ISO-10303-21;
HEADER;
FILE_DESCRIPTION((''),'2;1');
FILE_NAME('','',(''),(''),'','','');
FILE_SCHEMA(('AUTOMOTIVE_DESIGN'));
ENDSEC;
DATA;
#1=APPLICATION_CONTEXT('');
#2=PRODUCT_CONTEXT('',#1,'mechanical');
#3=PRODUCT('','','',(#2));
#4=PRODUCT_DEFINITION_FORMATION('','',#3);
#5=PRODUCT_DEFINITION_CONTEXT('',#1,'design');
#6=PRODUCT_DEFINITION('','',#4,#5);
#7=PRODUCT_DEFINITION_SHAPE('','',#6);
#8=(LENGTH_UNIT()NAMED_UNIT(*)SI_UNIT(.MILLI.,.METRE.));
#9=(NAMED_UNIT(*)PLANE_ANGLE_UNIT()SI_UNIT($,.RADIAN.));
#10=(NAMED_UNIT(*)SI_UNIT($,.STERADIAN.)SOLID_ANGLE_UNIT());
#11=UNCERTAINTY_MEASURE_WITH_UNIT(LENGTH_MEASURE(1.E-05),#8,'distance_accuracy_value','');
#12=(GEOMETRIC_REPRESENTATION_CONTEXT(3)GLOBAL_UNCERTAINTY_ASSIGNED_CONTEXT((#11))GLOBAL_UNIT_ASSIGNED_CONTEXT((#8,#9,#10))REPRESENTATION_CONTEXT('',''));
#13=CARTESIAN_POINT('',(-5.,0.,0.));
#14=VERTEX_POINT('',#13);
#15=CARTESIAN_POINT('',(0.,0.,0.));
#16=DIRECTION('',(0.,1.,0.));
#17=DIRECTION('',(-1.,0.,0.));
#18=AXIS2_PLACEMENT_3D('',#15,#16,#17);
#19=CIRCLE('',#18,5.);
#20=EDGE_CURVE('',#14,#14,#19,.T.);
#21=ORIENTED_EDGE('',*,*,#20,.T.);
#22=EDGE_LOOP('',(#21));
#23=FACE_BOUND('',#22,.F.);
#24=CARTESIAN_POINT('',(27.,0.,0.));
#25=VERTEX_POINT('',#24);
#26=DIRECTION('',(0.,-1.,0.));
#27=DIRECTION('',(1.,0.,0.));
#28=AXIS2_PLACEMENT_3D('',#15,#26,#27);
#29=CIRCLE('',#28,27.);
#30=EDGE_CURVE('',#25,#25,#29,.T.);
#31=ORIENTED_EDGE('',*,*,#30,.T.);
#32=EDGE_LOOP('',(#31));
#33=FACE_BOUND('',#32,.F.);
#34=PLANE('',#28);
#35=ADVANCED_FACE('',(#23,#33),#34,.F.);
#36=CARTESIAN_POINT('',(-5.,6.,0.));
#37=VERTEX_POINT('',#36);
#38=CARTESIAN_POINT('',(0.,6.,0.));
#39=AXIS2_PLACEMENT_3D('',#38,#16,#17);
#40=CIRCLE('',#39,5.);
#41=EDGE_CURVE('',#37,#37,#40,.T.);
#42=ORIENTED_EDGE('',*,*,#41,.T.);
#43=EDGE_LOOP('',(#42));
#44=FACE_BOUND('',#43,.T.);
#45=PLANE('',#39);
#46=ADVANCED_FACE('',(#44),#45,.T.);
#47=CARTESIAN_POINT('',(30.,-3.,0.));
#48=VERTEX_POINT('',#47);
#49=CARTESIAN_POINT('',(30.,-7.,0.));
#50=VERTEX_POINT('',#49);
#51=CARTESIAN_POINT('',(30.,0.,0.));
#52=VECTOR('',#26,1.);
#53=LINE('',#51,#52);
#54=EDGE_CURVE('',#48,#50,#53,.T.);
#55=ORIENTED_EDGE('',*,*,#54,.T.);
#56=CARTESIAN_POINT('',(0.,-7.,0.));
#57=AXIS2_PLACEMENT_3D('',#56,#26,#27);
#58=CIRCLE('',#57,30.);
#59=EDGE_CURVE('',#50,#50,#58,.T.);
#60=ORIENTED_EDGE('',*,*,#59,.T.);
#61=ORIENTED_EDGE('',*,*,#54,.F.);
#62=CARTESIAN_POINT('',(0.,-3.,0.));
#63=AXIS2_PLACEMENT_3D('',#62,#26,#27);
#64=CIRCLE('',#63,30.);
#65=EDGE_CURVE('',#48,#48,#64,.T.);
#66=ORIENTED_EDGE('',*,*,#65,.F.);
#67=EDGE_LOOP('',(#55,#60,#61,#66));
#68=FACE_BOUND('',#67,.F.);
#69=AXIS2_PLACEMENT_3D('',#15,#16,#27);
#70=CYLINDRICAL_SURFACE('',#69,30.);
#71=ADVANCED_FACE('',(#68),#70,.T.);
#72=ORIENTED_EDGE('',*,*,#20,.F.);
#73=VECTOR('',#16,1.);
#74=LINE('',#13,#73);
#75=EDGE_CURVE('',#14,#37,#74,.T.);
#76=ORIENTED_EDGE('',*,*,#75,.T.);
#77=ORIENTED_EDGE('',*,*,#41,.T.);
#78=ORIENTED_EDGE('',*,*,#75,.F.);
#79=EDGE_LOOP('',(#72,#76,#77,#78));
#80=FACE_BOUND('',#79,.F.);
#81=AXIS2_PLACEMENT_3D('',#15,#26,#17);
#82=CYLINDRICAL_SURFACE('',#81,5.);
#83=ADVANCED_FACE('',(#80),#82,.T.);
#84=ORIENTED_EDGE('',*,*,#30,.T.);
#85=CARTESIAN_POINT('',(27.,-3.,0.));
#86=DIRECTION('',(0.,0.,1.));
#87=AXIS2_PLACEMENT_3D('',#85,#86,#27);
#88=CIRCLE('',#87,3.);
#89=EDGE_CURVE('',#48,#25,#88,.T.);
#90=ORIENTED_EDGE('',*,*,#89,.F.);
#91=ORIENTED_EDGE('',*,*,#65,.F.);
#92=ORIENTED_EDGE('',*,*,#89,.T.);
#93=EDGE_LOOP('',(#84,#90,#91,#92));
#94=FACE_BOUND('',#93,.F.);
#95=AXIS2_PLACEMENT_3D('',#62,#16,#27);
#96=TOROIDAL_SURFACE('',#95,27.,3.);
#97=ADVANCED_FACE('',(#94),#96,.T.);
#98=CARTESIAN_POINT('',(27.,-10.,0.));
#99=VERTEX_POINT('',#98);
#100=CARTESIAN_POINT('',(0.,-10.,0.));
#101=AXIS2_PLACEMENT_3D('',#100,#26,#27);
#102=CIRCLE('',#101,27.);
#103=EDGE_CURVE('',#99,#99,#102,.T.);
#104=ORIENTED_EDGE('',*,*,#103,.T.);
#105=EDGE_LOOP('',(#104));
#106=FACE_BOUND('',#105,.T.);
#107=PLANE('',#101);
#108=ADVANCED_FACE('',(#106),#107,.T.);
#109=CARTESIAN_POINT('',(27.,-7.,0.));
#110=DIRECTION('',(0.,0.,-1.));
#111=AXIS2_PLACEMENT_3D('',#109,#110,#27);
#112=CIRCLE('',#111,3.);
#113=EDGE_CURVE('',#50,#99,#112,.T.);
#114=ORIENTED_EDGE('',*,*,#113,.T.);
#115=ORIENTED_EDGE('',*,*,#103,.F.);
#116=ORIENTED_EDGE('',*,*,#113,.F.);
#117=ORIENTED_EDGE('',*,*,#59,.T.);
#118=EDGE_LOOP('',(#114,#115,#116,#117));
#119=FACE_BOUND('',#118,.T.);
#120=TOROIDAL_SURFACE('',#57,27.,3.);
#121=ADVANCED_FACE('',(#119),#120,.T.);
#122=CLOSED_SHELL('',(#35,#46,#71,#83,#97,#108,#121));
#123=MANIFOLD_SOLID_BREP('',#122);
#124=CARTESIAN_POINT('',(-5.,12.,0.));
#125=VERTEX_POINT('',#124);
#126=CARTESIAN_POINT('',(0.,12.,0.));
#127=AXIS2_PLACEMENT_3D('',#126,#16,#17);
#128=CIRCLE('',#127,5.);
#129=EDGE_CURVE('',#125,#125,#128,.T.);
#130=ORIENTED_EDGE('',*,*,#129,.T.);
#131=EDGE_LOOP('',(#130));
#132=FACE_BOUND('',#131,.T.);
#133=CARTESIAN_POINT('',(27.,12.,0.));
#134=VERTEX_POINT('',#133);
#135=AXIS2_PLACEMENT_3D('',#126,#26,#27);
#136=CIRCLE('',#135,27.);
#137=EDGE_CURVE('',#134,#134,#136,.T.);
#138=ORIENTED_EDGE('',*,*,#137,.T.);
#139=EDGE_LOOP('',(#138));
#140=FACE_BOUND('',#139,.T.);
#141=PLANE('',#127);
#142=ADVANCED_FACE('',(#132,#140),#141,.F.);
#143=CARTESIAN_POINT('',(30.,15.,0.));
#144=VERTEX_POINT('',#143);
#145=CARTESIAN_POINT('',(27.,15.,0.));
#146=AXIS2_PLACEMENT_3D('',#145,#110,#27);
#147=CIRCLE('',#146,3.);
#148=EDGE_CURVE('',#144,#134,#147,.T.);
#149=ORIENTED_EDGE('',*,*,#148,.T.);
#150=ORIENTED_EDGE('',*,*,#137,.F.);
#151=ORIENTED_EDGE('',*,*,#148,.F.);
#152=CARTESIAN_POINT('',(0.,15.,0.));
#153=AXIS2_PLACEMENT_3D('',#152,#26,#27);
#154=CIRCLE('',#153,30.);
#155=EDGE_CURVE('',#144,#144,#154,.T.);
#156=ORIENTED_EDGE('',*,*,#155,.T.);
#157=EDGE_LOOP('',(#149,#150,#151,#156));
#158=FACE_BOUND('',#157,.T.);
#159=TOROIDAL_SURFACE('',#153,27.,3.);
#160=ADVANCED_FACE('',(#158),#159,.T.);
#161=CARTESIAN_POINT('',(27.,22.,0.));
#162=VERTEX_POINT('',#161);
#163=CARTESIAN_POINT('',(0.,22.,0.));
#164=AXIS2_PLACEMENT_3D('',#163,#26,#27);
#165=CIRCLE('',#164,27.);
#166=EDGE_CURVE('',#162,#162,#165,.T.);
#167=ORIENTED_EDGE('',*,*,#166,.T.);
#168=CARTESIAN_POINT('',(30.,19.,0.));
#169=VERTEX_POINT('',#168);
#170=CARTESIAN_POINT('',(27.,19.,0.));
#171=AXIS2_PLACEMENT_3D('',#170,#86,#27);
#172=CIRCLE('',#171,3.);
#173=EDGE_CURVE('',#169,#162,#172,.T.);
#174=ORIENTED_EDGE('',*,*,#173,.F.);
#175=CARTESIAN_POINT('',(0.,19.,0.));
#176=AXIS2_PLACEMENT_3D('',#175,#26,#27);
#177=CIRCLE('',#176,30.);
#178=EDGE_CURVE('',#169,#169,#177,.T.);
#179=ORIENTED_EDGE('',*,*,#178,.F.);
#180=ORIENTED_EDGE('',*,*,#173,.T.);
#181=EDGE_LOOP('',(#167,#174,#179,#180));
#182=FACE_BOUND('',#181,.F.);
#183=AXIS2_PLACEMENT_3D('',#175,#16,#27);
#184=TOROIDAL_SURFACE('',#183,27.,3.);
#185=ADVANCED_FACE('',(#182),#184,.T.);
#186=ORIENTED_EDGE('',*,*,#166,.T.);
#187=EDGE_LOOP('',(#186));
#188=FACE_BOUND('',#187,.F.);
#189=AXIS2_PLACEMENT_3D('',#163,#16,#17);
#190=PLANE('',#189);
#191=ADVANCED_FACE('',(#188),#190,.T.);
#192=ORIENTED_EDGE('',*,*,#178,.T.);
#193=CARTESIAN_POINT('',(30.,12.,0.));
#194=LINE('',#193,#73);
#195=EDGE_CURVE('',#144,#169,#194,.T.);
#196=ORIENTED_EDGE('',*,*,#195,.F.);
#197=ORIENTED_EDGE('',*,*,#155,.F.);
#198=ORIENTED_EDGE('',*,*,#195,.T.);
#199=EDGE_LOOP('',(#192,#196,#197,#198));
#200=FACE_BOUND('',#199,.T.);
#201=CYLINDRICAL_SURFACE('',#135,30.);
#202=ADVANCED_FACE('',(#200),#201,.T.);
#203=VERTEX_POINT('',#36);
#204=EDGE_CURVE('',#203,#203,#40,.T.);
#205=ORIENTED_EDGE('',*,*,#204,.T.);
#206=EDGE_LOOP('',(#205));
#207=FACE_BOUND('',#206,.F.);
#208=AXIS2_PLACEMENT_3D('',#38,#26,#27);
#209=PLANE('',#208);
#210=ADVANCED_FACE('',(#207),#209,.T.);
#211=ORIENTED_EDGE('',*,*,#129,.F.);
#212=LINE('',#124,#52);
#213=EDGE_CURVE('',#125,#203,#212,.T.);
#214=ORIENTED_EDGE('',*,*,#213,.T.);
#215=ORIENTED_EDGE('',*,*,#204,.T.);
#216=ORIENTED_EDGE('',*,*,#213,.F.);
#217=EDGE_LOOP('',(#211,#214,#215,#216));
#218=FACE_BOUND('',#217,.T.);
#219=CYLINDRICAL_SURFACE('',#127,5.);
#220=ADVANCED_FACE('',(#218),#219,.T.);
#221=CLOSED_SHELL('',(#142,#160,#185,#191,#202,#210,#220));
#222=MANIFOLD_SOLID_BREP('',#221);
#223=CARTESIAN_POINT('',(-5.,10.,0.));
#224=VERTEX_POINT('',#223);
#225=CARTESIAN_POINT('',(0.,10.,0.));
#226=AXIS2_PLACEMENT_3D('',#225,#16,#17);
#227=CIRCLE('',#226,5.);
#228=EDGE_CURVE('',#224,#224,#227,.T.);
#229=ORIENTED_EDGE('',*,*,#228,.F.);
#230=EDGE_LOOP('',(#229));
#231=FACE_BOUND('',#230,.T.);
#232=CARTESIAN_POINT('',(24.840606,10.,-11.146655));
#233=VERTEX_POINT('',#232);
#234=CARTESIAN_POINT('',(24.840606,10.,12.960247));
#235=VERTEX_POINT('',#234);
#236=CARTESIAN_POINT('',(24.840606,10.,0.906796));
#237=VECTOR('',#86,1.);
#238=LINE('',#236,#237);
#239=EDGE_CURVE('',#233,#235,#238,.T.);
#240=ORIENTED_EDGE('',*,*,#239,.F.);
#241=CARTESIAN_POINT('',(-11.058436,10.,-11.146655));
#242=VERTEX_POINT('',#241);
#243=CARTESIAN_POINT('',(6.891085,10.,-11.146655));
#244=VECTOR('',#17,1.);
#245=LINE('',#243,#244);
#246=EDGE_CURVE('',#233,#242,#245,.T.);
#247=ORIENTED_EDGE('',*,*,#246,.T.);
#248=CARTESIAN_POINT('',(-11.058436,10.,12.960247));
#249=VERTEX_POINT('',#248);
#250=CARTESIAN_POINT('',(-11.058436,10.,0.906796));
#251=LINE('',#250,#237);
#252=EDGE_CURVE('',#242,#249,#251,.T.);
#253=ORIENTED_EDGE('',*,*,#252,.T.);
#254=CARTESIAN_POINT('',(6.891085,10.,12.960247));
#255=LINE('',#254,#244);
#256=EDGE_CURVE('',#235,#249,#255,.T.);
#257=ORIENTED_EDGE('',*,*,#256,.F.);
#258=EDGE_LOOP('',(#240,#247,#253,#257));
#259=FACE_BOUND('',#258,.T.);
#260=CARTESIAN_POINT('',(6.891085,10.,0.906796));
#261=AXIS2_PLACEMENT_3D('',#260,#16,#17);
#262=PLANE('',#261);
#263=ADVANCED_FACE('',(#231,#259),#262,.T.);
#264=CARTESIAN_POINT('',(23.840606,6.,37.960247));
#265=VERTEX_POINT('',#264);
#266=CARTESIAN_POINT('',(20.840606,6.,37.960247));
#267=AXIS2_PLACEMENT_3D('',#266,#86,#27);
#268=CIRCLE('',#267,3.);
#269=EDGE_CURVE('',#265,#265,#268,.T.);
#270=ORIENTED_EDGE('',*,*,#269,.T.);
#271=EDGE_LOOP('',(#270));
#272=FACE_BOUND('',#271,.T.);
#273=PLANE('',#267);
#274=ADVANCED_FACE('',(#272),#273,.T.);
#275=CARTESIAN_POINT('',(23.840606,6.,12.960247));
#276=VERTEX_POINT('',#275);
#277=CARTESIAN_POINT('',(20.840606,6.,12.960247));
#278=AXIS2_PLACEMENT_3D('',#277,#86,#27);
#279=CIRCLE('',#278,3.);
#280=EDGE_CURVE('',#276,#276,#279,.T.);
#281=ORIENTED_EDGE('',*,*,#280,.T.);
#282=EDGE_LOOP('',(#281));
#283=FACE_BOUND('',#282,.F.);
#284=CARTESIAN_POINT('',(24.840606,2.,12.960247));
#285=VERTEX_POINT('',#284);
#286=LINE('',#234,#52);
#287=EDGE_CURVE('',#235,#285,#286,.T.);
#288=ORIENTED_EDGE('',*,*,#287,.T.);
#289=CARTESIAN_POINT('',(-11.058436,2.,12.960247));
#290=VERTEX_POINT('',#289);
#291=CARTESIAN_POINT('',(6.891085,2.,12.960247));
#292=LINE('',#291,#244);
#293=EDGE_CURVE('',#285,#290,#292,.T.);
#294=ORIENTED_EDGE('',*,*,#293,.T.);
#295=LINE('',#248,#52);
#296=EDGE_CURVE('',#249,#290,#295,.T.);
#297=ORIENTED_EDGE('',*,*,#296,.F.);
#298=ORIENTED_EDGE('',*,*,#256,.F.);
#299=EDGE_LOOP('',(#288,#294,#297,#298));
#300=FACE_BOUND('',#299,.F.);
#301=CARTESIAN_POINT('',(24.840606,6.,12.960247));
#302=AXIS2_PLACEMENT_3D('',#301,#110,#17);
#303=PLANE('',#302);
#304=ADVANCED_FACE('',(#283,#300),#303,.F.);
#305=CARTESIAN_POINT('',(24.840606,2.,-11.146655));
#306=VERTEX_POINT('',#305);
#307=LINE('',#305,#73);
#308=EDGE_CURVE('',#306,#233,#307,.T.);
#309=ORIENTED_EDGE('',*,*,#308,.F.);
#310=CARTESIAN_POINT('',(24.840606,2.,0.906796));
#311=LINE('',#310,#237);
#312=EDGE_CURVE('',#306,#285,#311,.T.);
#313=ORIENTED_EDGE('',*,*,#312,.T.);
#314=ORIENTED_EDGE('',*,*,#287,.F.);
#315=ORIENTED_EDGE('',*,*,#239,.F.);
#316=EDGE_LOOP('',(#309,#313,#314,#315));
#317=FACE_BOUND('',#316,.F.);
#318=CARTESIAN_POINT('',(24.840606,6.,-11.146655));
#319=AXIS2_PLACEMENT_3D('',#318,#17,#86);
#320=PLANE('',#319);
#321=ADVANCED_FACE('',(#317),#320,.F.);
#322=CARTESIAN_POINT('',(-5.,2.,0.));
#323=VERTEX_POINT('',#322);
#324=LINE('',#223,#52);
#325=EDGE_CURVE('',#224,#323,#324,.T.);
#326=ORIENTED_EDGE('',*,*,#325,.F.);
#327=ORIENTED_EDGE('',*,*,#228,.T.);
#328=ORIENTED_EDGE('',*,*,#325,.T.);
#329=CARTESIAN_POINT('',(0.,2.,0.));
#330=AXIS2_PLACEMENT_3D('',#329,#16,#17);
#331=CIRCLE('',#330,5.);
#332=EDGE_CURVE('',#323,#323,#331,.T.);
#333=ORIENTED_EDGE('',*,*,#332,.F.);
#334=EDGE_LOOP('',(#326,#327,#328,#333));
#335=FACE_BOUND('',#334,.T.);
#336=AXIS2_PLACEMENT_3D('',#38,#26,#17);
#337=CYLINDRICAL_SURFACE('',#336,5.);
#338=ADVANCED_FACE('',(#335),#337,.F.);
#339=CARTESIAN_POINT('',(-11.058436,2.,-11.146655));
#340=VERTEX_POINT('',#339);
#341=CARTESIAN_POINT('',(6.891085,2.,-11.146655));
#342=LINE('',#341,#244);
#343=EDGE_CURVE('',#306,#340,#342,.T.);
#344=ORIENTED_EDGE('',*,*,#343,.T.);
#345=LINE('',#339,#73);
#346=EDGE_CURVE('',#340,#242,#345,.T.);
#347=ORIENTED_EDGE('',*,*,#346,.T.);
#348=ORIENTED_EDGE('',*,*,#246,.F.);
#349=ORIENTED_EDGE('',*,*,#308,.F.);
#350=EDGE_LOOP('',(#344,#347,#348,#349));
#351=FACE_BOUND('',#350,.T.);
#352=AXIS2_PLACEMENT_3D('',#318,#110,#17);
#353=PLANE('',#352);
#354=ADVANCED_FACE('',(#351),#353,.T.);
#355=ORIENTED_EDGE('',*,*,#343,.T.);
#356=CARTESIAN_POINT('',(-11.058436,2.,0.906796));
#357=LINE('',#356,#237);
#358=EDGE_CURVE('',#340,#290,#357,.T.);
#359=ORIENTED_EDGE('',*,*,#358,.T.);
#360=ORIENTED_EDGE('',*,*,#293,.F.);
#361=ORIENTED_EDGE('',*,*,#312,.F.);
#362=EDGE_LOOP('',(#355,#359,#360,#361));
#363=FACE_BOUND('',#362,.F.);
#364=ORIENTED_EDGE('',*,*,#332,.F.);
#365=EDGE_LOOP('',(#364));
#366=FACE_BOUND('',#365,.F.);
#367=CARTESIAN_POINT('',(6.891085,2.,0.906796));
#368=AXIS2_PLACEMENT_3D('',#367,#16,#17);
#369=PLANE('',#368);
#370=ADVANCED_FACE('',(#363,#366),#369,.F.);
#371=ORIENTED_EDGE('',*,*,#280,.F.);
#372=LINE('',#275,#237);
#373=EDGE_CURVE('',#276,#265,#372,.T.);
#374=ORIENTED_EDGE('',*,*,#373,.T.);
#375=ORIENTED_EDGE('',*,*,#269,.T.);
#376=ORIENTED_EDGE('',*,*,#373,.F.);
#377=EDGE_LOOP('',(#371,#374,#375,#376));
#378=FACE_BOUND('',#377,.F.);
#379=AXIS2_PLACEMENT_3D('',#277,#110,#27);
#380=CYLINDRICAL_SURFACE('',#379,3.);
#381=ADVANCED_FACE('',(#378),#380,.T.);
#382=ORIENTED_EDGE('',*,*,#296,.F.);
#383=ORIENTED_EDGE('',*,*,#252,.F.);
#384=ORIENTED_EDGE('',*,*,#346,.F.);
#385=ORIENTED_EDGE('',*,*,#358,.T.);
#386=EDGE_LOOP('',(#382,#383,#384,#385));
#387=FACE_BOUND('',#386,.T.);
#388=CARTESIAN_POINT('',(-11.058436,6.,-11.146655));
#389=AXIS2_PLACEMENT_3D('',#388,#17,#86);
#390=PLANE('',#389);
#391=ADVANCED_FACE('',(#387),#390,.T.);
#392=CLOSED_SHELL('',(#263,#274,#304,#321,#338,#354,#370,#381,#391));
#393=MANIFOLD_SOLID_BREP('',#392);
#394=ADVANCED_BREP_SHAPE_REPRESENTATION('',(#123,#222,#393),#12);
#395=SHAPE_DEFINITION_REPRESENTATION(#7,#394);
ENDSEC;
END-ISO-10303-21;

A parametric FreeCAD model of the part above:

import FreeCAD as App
import Part
import Sketcher
from FreeCAD import Vector


def edges_at(feature, points):
    """Names of the edges that pass closest to the given points."""
    edges = feature.Shape.Edges
    near = lambda p: min(range(len(edges)), key=lambda i: edges[i].distToShape(Part.Vertex(*p))[0])
    return sorted({f"Edge{near(p) + 1}" for p in points})

doc = App.newDocument("Part")
params = doc.addObject("Spreadsheet::Sheet", "Params")
for row, (alias, value) in enumerate([
    ("sketch1_diameter", "60 mm"),
    ("pad1_length", "10 mm"),
    ("fillet_radius", "3 mm"),
    ("sketch2_diameter", "10 mm"),
    ("pad2_length", "6 mm"),
    ("sketch3_diameter", "10 mm"),
    ("pad3_length", "8 mm"),
    ("sketch4_diameter", "6 mm"),
    ("pad4_length", "25 mm"),
], start=1):
    params.set(f"A{row}", alias)
    params.set(f"B{row}", "=" + value)
    params.setAlias(f"B{row}", alias)

body = doc.addObject("PartDesign::Body", "Body")

sketch1 = body.newObject("Sketcher::SketchObject", "Sketch")
sketch1.AttachmentSupport = (doc.getObject("XZ_Plane"), [""])
sketch1.MapMode = "FlatFace"
sketch1.addGeometry(Part.Circle(Vector(0, 0, 0), Vector(0, 0, 1), 30), False)
sketch1.addConstraint(Sketcher.Constraint("Coincident", 0, 3, -1, 1))
sketch1.addConstraint(Sketcher.Constraint("Diameter", 0, 60.0))
sketch1.setExpression("Constraints[1]", "Params.sketch1_diameter")
pad1 = body.newObject("PartDesign::Pad", "Pad")
pad1.Profile = sketch1
pad1.setExpression("Length", "Params.pad1_length")
doc.recompute()

fillet = body.newObject("PartDesign::Fillet", "Fillet")
fillet.Base = (pad1, edges_at(pad1, [(-30, 0, 0), (-30, -10, 0)]))
fillet.setExpression("Radius", "Params.fillet_radius")

sketch2 = body.newObject("Sketcher::SketchObject", "Sketch001")
sketch2.AttachmentSupport = (doc.getObject("XZ_Plane"), [""])
sketch2.MapMode = "FlatFace"
sketch2.addGeometry(Part.Circle(Vector(0, 0, 0), Vector(0, 0, 1), 5), False)
sketch2.addConstraint(Sketcher.Constraint("Coincident", 0, 3, -1, 1))
sketch2.addConstraint(Sketcher.Constraint("Diameter", 0, 10.0))
sketch2.setExpression("Constraints[1]", "Params.sketch2_diameter")
pad2 = body.newObject("PartDesign::Pad", "Pad001")
pad2.Profile = sketch2
pad2.setExpression("Length", "Params.pad2_length")
pad2.Reversed = True
body2 = doc.addObject("PartDesign::Body", "Body001")
doc.recompute()

mirroring = doc.addObject("Part::Mirroring", "Mirroring")
mirroring.Source = body
mirroring.Base = Vector(0, 6, 0)
mirroring.Normal = Vector(0, 1, 0)
body2.BaseFeature = mirroring
doc.recompute()
body3 = doc.addObject("PartDesign::Body", "Body002")

sketch3 = body3.newObject("Sketcher::SketchObject", "Sketch002")
sketch3.AttachmentSupport = (doc.getObject("XZ_Plane002"), [""])
sketch3.MapMode = "FlatFace"
sketch3.AttachmentOffset = App.Placement(Vector(0, 0, -6), App.Rotation())
sketch3.addGeometry(Part.LineSegment(Vector(25, 13, 0), Vector(25, -11, 0)), False)
sketch3.addGeometry(Part.LineSegment(Vector(25, -11, 0), Vector(-11, -11, 0)), False)
sketch3.addGeometry(Part.LineSegment(Vector(-11, -11, 0), Vector(-11, 13, 0)), False)
sketch3.addGeometry(Part.LineSegment(Vector(-11, 13, 0), Vector(25, 13, 0)), False)
sketch3.addGeometry(Part.Circle(Vector(0, 0, 0), Vector(0, 0, 1), 5), False)
sketch3.addConstraint(Sketcher.Constraint("Coincident", 0, 2, 1, 1))
sketch3.addConstraint(Sketcher.Constraint("Coincident", 1, 2, 2, 1))
sketch3.addConstraint(Sketcher.Constraint("Coincident", 2, 2, 3, 1))
sketch3.addConstraint(Sketcher.Constraint("Coincident", 3, 2, 0, 1))
sketch3.addConstraint(Sketcher.Constraint("Vertical", 0))
sketch3.addConstraint(Sketcher.Constraint("Horizontal", 1))
sketch3.addConstraint(Sketcher.Constraint("Vertical", 2))
sketch3.addConstraint(Sketcher.Constraint("Horizontal", 3))
sketch3.addConstraint(Sketcher.Constraint("Coincident", 4, 3, -1, 1))
sketch3.addConstraint(Sketcher.Constraint("Diameter", 4, 10.0))
sketch3.addConstraint(Sketcher.Constraint("DistanceX", 1, 2, 1, 1, 35.899042))
sketch3.addConstraint(Sketcher.Constraint("DistanceY", 0, 2, 0, 1, 24.106902))
sketch3.addConstraint(Sketcher.Constraint("DistanceX", -1, 1, 0, 2, 24.840606))
sketch3.addConstraint(Sketcher.Constraint("DistanceY", 0, 2, -1, 1, 11.146655))
sketch3.setExpression("Constraints[9]", "Params.sketch3_diameter")
pad3 = body3.newObject("PartDesign::Pad", "Pad002")
pad3.Profile = sketch3
pad3.setExpression("Length", "Params.pad3_length")
pad3.Midplane = True

sketch4 = body3.newObject("Sketcher::SketchObject", "Sketch003")
sketch4.AttachmentSupport = (doc.getObject("XY_Plane002"), [""])
sketch4.MapMode = "FlatFace"
sketch4.AttachmentOffset = App.Placement(Vector(0, 0, 12.960247), App.Rotation())
sketch4.addGeometry(Part.Circle(Vector(20.8, 6, 0), Vector(0, 0, 1), 3), False)
sketch4.addConstraint(Sketcher.Constraint("Diameter", 0, 6.0))
sketch4.addConstraint(Sketcher.Constraint("DistanceY", -1, 1, 0, 3, 6.0))
sketch4.addConstraint(Sketcher.Constraint("DistanceX", -1, 1, 0, 3, 20.840606))
sketch4.setExpression("Constraints[0]", "Params.sketch4_diameter")
pad4 = body3.newObject("PartDesign::Pad", "Pad003")
pad4.Profile = sketch4
pad4.setExpression("Length", "Params.pad4_length")
mirroring.Visibility = False

doc.recompute()
